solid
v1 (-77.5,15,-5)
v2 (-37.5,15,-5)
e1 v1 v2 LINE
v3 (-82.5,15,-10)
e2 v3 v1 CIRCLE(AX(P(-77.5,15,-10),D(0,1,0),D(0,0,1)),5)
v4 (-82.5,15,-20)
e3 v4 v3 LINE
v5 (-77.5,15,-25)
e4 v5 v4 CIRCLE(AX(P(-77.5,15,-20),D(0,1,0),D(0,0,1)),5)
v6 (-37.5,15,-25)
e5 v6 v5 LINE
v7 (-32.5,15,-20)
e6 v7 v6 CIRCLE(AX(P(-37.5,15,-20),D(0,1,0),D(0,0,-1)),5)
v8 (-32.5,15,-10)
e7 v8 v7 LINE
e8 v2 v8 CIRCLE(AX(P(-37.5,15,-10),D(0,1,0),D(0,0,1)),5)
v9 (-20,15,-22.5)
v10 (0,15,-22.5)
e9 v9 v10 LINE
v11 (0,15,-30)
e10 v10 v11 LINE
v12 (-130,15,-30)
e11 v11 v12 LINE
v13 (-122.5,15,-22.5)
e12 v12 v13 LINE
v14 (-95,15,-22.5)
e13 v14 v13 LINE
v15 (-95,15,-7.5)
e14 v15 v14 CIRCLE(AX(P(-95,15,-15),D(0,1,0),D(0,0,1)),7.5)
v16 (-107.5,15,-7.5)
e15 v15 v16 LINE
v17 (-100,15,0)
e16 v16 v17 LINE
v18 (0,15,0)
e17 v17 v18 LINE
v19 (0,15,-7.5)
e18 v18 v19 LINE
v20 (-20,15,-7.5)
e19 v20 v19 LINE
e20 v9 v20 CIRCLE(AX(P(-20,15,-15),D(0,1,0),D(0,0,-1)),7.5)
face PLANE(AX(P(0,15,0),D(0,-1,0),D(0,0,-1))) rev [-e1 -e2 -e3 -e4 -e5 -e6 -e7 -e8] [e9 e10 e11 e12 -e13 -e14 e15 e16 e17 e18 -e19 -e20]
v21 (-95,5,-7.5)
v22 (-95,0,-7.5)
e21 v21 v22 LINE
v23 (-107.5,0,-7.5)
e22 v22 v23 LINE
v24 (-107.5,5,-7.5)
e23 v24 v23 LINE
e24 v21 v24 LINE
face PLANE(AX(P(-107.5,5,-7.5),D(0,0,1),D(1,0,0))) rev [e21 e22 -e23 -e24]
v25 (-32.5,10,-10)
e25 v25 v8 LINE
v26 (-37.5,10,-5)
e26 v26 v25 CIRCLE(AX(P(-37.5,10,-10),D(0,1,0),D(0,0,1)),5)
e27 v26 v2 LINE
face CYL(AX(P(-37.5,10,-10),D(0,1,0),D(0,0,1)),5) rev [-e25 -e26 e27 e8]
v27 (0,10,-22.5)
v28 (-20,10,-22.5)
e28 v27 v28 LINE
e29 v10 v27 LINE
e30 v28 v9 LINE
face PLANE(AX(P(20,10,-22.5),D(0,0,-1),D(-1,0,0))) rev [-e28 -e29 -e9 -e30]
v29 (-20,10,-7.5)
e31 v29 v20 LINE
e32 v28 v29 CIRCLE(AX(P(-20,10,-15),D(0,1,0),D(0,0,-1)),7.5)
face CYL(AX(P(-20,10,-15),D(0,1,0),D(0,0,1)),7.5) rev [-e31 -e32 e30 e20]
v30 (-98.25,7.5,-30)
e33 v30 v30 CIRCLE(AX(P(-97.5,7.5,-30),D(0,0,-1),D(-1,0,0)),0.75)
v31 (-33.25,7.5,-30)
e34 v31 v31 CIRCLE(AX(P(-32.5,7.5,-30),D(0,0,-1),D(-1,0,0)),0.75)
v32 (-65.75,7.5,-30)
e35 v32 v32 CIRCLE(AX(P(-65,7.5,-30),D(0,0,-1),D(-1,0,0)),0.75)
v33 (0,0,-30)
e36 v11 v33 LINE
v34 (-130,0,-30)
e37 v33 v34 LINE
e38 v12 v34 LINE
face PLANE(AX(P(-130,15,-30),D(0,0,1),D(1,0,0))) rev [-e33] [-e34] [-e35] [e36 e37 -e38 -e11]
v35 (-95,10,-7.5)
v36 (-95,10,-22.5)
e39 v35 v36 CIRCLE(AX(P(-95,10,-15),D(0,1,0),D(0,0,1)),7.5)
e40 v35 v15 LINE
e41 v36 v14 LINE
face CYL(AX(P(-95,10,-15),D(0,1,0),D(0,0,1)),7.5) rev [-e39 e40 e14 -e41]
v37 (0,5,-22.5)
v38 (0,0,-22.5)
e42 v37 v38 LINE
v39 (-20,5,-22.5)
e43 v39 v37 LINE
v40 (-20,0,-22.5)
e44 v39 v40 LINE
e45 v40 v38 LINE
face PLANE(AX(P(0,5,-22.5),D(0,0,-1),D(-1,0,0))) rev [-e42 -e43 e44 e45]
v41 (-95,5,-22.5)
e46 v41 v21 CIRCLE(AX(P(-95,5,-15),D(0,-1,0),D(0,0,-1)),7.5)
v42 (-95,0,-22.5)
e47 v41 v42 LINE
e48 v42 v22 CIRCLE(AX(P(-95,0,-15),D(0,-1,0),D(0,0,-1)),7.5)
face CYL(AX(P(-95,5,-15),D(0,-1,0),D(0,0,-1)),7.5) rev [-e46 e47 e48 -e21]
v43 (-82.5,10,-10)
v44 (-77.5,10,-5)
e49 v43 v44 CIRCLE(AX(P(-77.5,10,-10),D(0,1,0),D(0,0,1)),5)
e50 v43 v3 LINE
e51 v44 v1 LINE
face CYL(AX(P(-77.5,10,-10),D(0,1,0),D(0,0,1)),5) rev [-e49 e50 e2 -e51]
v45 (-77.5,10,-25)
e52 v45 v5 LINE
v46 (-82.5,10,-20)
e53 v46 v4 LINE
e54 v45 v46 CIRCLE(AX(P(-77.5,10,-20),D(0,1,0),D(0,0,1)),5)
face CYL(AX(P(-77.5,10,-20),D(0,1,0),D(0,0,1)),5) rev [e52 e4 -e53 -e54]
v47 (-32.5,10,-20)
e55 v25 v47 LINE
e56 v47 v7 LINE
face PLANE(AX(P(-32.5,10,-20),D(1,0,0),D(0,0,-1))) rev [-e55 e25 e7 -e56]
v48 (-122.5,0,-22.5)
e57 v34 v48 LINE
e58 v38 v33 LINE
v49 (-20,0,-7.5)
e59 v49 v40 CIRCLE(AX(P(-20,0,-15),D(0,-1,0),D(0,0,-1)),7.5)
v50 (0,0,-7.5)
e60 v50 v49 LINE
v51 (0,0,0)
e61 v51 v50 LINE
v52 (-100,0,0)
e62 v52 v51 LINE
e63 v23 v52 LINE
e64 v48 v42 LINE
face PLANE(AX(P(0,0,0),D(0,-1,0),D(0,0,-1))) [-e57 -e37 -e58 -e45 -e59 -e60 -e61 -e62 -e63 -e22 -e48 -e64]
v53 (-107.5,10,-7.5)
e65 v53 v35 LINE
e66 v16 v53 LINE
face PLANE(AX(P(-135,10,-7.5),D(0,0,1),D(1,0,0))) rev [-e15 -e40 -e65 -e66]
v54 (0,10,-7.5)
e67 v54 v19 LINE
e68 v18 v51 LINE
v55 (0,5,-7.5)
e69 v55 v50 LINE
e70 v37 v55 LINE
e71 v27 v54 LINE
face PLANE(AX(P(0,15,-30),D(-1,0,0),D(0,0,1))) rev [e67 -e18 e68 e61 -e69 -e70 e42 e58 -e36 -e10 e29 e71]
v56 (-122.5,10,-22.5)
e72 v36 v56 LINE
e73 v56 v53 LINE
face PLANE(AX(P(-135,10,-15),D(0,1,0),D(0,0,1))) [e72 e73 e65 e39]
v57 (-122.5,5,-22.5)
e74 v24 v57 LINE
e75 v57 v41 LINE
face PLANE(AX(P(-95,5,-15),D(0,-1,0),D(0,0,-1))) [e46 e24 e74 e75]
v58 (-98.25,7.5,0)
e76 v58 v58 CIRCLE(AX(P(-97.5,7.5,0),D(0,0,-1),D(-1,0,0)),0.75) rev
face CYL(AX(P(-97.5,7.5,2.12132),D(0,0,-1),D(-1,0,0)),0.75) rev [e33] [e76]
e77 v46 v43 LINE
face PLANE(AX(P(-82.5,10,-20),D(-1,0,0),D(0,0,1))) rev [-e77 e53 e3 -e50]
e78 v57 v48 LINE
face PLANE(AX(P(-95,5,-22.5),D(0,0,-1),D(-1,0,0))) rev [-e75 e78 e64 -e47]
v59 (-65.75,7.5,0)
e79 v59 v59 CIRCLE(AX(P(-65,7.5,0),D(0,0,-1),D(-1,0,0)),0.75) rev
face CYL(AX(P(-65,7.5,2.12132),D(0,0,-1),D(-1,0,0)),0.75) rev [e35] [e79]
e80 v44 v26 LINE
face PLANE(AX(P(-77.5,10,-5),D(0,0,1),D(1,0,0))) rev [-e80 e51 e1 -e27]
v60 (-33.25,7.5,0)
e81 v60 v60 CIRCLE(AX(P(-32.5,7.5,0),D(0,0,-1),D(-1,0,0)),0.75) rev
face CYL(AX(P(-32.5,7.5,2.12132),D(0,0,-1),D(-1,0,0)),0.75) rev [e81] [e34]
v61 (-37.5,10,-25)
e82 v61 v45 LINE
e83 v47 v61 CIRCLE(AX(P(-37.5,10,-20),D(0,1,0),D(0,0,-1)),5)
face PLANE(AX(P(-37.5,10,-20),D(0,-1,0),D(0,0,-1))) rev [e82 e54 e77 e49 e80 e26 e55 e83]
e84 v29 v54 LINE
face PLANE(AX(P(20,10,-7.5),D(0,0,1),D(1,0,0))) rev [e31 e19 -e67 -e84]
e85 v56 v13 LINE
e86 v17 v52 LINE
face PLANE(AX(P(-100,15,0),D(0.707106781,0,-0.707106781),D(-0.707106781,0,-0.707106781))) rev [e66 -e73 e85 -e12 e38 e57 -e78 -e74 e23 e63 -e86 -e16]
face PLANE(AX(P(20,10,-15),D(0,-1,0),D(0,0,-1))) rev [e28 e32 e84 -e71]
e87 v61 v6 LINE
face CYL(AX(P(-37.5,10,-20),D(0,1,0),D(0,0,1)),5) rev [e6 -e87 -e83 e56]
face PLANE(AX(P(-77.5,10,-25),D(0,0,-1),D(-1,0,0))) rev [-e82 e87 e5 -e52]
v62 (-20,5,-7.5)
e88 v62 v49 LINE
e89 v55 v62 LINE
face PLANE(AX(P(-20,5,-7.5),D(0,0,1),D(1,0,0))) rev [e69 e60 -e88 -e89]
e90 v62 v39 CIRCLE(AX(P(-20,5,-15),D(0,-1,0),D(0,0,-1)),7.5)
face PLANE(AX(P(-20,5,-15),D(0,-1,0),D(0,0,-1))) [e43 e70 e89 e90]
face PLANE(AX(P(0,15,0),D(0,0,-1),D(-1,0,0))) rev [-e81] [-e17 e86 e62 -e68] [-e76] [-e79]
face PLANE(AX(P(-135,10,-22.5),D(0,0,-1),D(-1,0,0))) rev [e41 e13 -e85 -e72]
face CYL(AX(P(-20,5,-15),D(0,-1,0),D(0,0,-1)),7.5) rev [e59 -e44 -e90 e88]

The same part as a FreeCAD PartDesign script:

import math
import FreeCAD as App
import Part
import Sketcher

V = App.Vector
Q = App.Units.Quantity

doc = App.newDocument("Part")
body = doc.addObject("PartDesign::Body", "Body")

# Sketch on XZ plane
sketch1 = doc.addObject("Sketcher::SketchObject", "Sketch")
body.addObject(sketch1)
sketch1.AttachmentSupport = (doc.XZ_Plane, [""])
sketch1.MapMode = "FlatFace"
sketch1.addGeometry(Part.LineSegment(V(-100, 0, 0), V(0, 0, 0)), False)
sketch1.addGeometry(Part.LineSegment(V(0, 0, 0), V(0, -30, 0)), False)
sketch1.addGeometry(Part.LineSegment(V(0, -30, 0), V(-130, -30, 0)), False)
sketch1.addGeometry(Part.LineSegment(V(-130, -30, 0), V(-100, 0, 0)), False)
sketch1.addConstraint(Sketcher.Constraint("Coincident", 0, 2, 1, 1))
sketch1.addConstraint(Sketcher.Constraint("Coincident", 1, 2, 2, 1))
sketch1.addConstraint(Sketcher.Constraint("Coincident", 2, 2, 3, 1))
sketch1.addConstraint(Sketcher.Constraint("Coincident", 3, 2, 0, 1))
sketch1.addConstraint(Sketcher.Constraint("Horizontal", 0))
sketch1.addConstraint(Sketcher.Constraint("Vertical", 1))
sketch1.addConstraint(Sketcher.Constraint("Horizontal", 2))
sketch1.addConstraint(Sketcher.Constraint("Coincident", 0, 2, -1, 1))
sketch1.addConstraint(Sketcher.Constraint("DistanceX", 0, 1, 0, 2, Q("100 mm")))
sketch1.addConstraint(Sketcher.Constraint("DistanceX", 2, 2, 2, 1, Q("130 mm")))
sketch1.addConstraint(Sketcher.Constraint("DistanceY", 1, 2, 1, 1, Q("30 mm")))
pad1 = doc.addObject("PartDesign::Pad", "Pad")
body.addObject(pad1)
pad1.Profile = sketch1
pad1.Length = 15
pad1.Reversed = True

# Sketch on XZ plane
sketch2 = doc.addObject("Sketcher::SketchObject", "Sketch001")
body.addObject(sketch2)
sketch2.AttachmentSupport = (doc.XZ_Plane, [""])
sketch2.MapMode = "FlatFace"
sketch2.AttachmentOffset = App.Placement(V(0, 0, -15), App.Rotation())
sketch2.addGeometry(Part.LineSegment(V(-95, -22, 0), V(-135, -22, 0)), False)
sketch2.addGeometry(Part.ArcOfCircle(Part.Circle(V(-135, -15, 0), V(0, 0, 1), 8), math.radians(90), math.radians(270)), False)
sketch2.addGeometry(Part.LineSegment(V(-135, -8, 0), V(-95, -8, 0)), False)
sketch2.addGeometry(Part.ArcOfCircle(Part.Circle(V(-95, -15, 0), V(0, 0, 1), 8), math.radians(-90), math.radians(90)), False)
sketch2.addGeometry(Part.LineSegment(V(20, -22, 0), V(-20, -22, 0)), False)
sketch2.addGeometry(Part.ArcOfCircle(Part.Circle(V(-20, -15, 0), V(0, 0, 1), 8), math.radians(90), math.radians(270)), False)
sketch2.addGeometry(Part.LineSegment(V(-20, -8, 0), V(20, -8, 0)), False)
sketch2.addGeometry(Part.ArcOfCircle(Part.Circle(V(20, -15, 0), V(0, 0, 1), 8), math.radians(-90), math.radians(90)), False)
sketch2.addConstraint(Sketcher.Constraint("Tangent", 0, 2, 1, 2))
sketch2.addConstraint(Sketcher.Constraint("Tangent", 1, 1, 2, 1))
sketch2.addConstraint(Sketcher.Constraint("Tangent", 2, 2, 3, 2))
sketch2.addConstraint(Sketcher.Constraint("Tangent", 3, 1, 0, 1))
sketch2.addConstraint(Sketcher.Constraint("Tangent", 4, 2, 5, 2))
sketch2.addConstraint(Sketcher.Constraint("Tangent", 5, 1, 6, 1))
sketch2.addConstraint(Sketcher.Constraint("Tangent", 6, 2, 7, 2))
sketch2.addConstraint(Sketcher.Constraint("Tangent", 7, 1, 4, 1))
sketch2.addConstraint(Sketcher.Constraint("Horizontal", 0))
sketch2.addConstraint(Sketcher.Constraint("Horizontal", 2))
sketch2.addConstraint(Sketcher.Constraint("Horizontal", 4))
sketch2.addConstraint(Sketcher.Constraint("Horizontal", 6))
sketch2.addConstraint(Sketcher.Constraint("Equal", 3, 5))
sketch2.addConstraint(Sketcher.Constraint("Horizontal", 3, 3, 5, 3))
sketch2.addConstraint(Sketcher.Constraint("Equal", 2, 4))
sketch2.addConstraint(Sketcher.Constraint("Radius", 1, Q("7.5 mm")))
sketch2.addConstraint(Sketcher.Constraint("DistanceX", 0, 2, 0, 1, Q("40 mm")))
sketch2.addConstraint(Sketcher.Constraint("DistanceX", 1, 3, -1, 1, Q("135 mm")))
sketch2.addConstraint(Sketcher.Constraint("DistanceY", 1, 3, -1, 1, Q("15 mm")))
sketch2.addConstraint(Sketcher.Constraint("DistanceX", 5, 3, -1, 1, Q("20 mm")))
pocket1 = doc.addObject("PartDesign::Pocket", "Pocket")
body.addObject(pocket1)
pocket1.Profile = sketch2
pocket1.Length = 5
pocket1.Reversed = True

# Sketch on XZ plane
sketch3 = doc.addObject("Sketcher::SketchObject", "Sketch002")
body.addObject(sketch3)
sketch3.AttachmentSupport = (doc.XZ_Plane, [""])
sketch3.MapMode = "FlatFace"
sketch3.addGeometry(Part.LineSegment(V(0, -22, 0), V(0, -8, 0)), False)
sketch3.addGeometry(Part.LineSegment(V(0, -8, 0), V(-20, -8, 0)), False)
sketch3.addGeometry(Part.ArcOfCircle(Part.Circle(V(-20, -15, 0), V(0, 0, 1), 8), math.radians(90), math.radians(270)), False)
sketch3.addGeometry(Part.LineSegment(V(-20, -22, 0), V(0, -22, 0)), False)
sketch3.addGeometry(Part.LineSegment(V(-108, -8, 0), V(-122, -22, 0)), False)
sketch3.addGeometry(Part.LineSegment(V(-122, -22, 0), V(-95, -22, 0)), False)
sketch3.addGeometry(Part.ArcOfCircle(Part.Circle(V(-95, -15, 0), V(0, 0, 1), 8), math.radians(-90), math.radians(90)), False)
sketch3.addGeometry(Part.LineSegment(V(-95, -8, 0), V(-108, -8, 0)), False)
sketch3.addConstraint(Sketcher.Constraint("Coincident", 0, 2, 1, 1))
sketch3.addConstraint(Sketcher.Constraint("Tangent", 1, 2, 2, 1))
sketch3.addConstraint(Sketcher.Constraint("Tangent", 2, 2, 3, 1))
sketch3.addConstraint(Sketcher.Constraint("Coincident", 3, 2, 0, 1))
sketch3.addConstraint(Sketcher.Constraint("Coincident", 4, 2, 5, 1))
sketch3.addConstraint(Sketcher.Constraint("Tangent", 5, 2, 6, 1))
sketch3.addConstraint(Sketcher.Constraint("Tangent", 6, 2, 7, 1))
sketch3.addConstraint(Sketcher.Constraint("Coincident", 7, 2, 4, 1))
sketch3.addConstraint(Sketcher.Constraint("Vertical", 0))
sketch3.addConstraint(Sketcher.Constraint("Horizontal", 1))
sketch3.addConstraint(Sketcher.Constraint("Horizontal", 3))
sketch3.addConstraint(Sketcher.Constraint("Horizontal", 5))
sketch3.addConstraint(Sketcher.Constraint("Horizontal", 7))
sketch3.addConstraint(Sketcher.Constraint("Equal", 2, 6))
sketch3.addConstraint(Sketcher.Constraint("PointOnObject", 0, 2, -2))
sketch3.addConstraint(Sketcher.Constraint("Horizontal", 2, 3, 6, 3))
sketch3.addConstraint(Sketcher.Constraint("Radius", 2, Q("7.5 mm")))
sketch3.addConstraint(Sketcher.Constraint("DistanceX", 1, 2, 1, 1, Q("20 mm")))
sketch3.addConstraint(Sketcher.Constraint("Angle", 4, Q("-135 deg")))
sketch3.addConstraint(Sketcher.Constraint("DistanceX", 5, 1, 5, 2, Q("27.5 mm")))
sketch3.addConstraint(Sketcher.Constraint("DistanceY", 2, 3, -1, 1, Q("15 mm")))
sketch3.addConstraint(Sketcher.Constraint("DistanceX", 6, 3, -1, 1, Q("95 mm")))
pocket2 = doc.addObject("PartDesign::Pocket", "Pocket001")
body.addObject(pocket2)
pocket2.Profile = sketch3
pocket2.Length = 5

# Sketch on XY plane
sketch4 = doc.addObject("Sketcher::SketchObject", "Sketch003")
body.addObject(sketch4)
sketch4.AttachmentSupport = (doc.XY_Plane, [""])
sketch4.MapMode = "FlatFace"
sketch4.AttachmentOffset = App.Placement(V(0, 0, -30), App.Rotation())
sketch4.addGeometry(Part.Circle(V(-65, 7.5, 0), V(0, 0, 1), 0.8), False)
sketch4.addGeometry(Part.Circle(V(-32.5, 7.5, 0), V(0, 0, 1), 0.8), False)
sketch4.addGeometry(Part.Circle(V(-97.5, 7.5, 0), V(0, 0, 1), 0.8), False)
sketch4.addConstraint(Sketcher.Constraint("Equal", 0, 1))
sketch4.addConstraint(Sketcher.Constraint("Equal", 1, 2))
sketch4.addConstraint(Sketcher.Constraint("Horizontal", 0, 3, 1, 3))
sketch4.addConstraint(Sketcher.Constraint("Horizontal", 1, 3, 2, 3))
sketch4.addConstraint(Sketcher.Constraint("Diameter", 0, Q("1.5 mm")))
sketch4.addConstraint(Sketcher.Constraint("DistanceX", 0, 3, -1, 1, Q("65 mm")))
sketch4.addConstraint(Sketcher.Constraint("DistanceX", 2, 3, 1, 3, Q("65 mm")))
sketch4.addConstraint(Sketcher.Constraint("DistanceY", -1, 1, 0, 3, Q("7.5 mm")))
sketch4.addConstraint(Sketcher.Constraint("DistanceX", 1, 3, -1, 1, Q("32.5 mm")))
pocket3 = doc.addObject("PartDesign::Pocket", "Pocket002")
body.addObject(pocket3)
pocket3.Profile = sketch4
pocket3.Length = 30
pocket3.Reversed = True

# Sketch on XZ plane
sketch5 = doc.addObject("Sketcher::SketchObject", "Sketch004")
body.addObject(sketch5)
sketch5.AttachmentSupport = (doc.XZ_Plane, [""])
sketch5.MapMode = "FlatFace"
sketch5.AttachmentOffset = App.Placement(V(0, 0, -15), App.Rotation())
sketch5.addGeometry(Part.LineSegment(V(-38, -25, 0), V(-78, -25, 0)), False)
sketch5.addGeometry(Part.ArcOfCircle(Part.Circle(V(-78, -20, 0), V(0, 0, 1), 5), math.radians(180), math.radians(270)), False)
sketch5.addGeometry(Part.LineSegment(V(-82, -20, 0), V(-82, -10, 0)), False)
sketch5.addGeometry(Part.ArcOfCircle(Part.Circle(V(-78, -10, 0), V(0, 0, 1), 5), math.radians(90), math.radians(180)), False)
sketch5.addGeometry(Part.LineSegment(V(-78, -5, 0), V(-38, -5, 0)), False)
sketch5.addGeometry(Part.ArcOfCircle(Part.Circle(V(-38, -10, 0), V(0, 0, 1), 5), math.radians(0), math.radians(90)), False)
sketch5.addGeometry(Part.LineSegment(V(-32, -10, 0), V(-32, -20, 0)), False)
sketch5.addGeometry(Part.ArcOfCircle(Part.Circle(V(-38, -20, 0), V(0, 0, 1), 5), math.radians(-90), math.radians(0)), False)
sketch5.addConstraint(Sketcher.Constraint("Tangent", 0, 2, 1, 2))
sketch5.addConstraint(Sketcher.Constraint("Tangent", 1, 1, 2, 1))
sketch5.addConstraint(Sketcher.Constraint("Tangent", 2, 2, 3, 2))
sketch5.addConstraint(Sketcher.Constraint("Tangent", 3, 1, 4, 1))
sketch5.addConstraint(Sketcher.Constraint("Tangent", 4, 2, 5, 2))
sketch5.addConstraint(Sketcher.Constraint("Tangent", 5, 1, 6, 1))
sketch5.addConstraint(Sketcher.Constraint("Tangent", 6, 2, 7, 2))
sketch5.addConstraint(Sketcher.Constraint("Tangent", 7, 1, 0, 1))
sketch5.addConstraint(Sketcher.Constraint("Horizontal", 0))
sketch5.addConstraint(Sketcher.Constraint("Vertical", 2))
sketch5.addConstraint(Sketcher.Constraint("Horizontal", 4))
sketch5.addConstraint(Sketcher.Constraint("Vertical", 6))
sketch5.addConstraint(Sketcher.Constraint("Equal", 1, 3))
sketch5.addConstraint(Sketcher.Constraint("Equal", 3, 5))
sketch5.addConstraint(Sketcher.Constraint("Equal", 5, 7))
sketch5.addConstraint(Sketcher.Constraint("Radius", 1, Q("5 mm")))
sketch5.addConstraint(Sketcher.Constraint("DistanceX", 0, 2, 0, 1, Q("40 mm")))
sketch5.addConstraint(Sketcher.Constraint("DistanceY", 2, 1, 2, 2, Q("10 mm")))
sketch5.addConstraint(Sketcher.Constraint("DistanceY", 1, 3, -1, 1, Q("20 mm")))
sketch5.addConstraint(Sketcher.Constraint("DistanceX", 1, 3, -1, 1, Q("77.5 mm")))
pocket4 = doc.addObject("PartDesign::Pocket", "Pocket003")
body.addObject(pocket4)
pocket4.Profile = sketch5
pocket4.Length = 5
pocket4.Reversed = True

doc.recompute()
